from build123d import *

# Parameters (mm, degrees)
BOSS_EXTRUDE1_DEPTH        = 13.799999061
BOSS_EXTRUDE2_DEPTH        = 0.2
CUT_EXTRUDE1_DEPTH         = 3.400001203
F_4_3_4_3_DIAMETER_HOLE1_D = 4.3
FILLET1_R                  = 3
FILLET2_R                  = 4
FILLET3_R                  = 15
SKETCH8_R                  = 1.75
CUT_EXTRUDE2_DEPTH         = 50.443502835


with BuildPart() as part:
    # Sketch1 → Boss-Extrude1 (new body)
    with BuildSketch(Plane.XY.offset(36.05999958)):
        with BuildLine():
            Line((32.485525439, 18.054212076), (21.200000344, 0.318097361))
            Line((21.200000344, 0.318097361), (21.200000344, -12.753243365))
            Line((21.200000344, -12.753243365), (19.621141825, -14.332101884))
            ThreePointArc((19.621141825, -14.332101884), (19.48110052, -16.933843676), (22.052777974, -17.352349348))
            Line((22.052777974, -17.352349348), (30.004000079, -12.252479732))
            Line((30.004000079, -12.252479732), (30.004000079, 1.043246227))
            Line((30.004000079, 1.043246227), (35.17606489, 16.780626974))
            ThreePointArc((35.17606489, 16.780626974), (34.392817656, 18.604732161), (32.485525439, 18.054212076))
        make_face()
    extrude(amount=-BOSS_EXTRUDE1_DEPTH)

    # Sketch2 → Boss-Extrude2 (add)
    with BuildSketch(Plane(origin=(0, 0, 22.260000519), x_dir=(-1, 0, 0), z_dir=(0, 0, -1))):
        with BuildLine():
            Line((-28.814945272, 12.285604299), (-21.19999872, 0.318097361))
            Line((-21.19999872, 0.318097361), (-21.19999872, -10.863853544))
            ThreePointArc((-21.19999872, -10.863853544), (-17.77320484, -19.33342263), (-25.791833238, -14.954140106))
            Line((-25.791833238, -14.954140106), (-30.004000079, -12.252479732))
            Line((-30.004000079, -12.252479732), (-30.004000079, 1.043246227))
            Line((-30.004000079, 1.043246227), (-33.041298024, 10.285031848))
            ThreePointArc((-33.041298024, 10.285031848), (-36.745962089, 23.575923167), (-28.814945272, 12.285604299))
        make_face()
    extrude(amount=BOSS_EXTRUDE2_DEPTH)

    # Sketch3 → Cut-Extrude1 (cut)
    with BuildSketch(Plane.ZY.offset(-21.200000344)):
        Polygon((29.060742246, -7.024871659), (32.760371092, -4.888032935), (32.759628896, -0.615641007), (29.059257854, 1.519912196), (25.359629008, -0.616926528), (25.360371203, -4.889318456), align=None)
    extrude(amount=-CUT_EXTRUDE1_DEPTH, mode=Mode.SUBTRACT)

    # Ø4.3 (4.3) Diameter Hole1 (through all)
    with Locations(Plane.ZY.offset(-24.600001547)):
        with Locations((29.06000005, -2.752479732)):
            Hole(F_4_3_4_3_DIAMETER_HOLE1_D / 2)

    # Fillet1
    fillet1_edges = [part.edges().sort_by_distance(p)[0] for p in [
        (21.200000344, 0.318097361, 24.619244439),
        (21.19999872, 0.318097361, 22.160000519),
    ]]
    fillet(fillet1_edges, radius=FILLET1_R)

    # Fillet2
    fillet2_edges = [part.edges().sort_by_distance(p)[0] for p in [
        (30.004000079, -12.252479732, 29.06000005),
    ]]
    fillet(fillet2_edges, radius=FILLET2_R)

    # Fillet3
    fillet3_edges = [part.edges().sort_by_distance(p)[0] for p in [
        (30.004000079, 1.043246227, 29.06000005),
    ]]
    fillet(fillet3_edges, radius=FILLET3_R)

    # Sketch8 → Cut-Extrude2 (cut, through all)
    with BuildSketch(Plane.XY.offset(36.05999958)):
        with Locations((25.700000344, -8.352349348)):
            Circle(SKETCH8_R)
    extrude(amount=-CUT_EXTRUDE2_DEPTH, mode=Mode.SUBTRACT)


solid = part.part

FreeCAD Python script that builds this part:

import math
import FreeCAD as App
import Part
import Sketcher
from FreeCAD import Vector
Q = App.Units.Quantity


def edges_at(feature, points):
    """Names of the edges that pass closest to the given points."""
    edges = feature.Shape.Edges
    near = lambda p: min(range(len(edges)), key=lambda i: edges[i].distToShape(Part.Vertex(*p))[0])
    return sorted({f"Edge{near(p) + 1}" for p in points})


def add_polygon(sketch, points):
    """Adds a closed chain of lines whose ends are joined by coincident constraints."""
    first, n = sketch.GeometryCount, len(points)
    for a, b in zip(points, points[1:] + points[:1]):
        sketch.addGeometry(Part.LineSegment(App.Vector(*a, 0), App.Vector(*b, 0)), False)
    for i in range(n):
        sketch.addConstraint(Sketcher.Constraint("Coincident", first + i, 2, first + (i + 1) % n, 1))

doc = App.newDocument("Part")
body = doc.addObject("PartDesign::Body", "Body")

# Sketch on XY plane
sketch1 = doc.addObject("Sketcher::SketchObject", "Sketch")
body.addObject(sketch1)
sketch1.AttachmentSupport = (doc.XY_Plane, [""])
sketch1.MapMode = "FlatFace"
sketch1.AttachmentOffset = App.Placement(Vector(0, 0, 36.06), App.Rotation())
sketch1.addGeometry([
    Part.LineSegment(Vector(32.485525, 18.054212, 0), Vector(21.2, 0.318097, 0)),  # 0
    Part.LineSegment(Vector(21.2, 0.318097, 0), Vector(21.2, -12.753243, 0)),  # 1
    Part.LineSegment(Vector(21.2, -12.753243, 0), Vector(19.621142, -14.332102, 0)),  # 2
    Part.ArcOfCircle(Part.Circle(Vector(21, -15.71096, 0), Vector(0, 0, 1), 1.95), math.radians(135), math.radians(302.675887)),  # 3
    Part.LineSegment(Vector(22.052778, -17.352349, 0), Vector(30.004, -12.25248, 0)),  # 4
    Part.LineSegment(Vector(30.004, -12.25248, 0), Vector(30.004, 1.043246, 0)),  # 5
    Part.LineSegment(Vector(30.004, 1.043246, 0), Vector(35.176065, 16.780627, 0)),  # 6
    Part.ArcOfCircle(Part.Circle(Vector(33.751051, 17.248955, 0), Vector(0, 0, 1), 1.499998), math.radians(-18.193025), math.radians(147.531322)),  # 7
], False)
sketch1.addConstraint([
    Sketcher.Constraint("Coincident", 0, 2, 1, 1),
    Sketcher.Constraint("Coincident", 1, 2, 2, 1),
    Sketcher.Constraint("Tangent", 2, 2, 3, 1),
    Sketcher.Constraint("Tangent", 3, 2, 4, 1),
    Sketcher.Constraint("Coincident", 4, 2, 5, 1),
    Sketcher.Constraint("Coincident", 5, 2, 6, 1),
    Sketcher.Constraint("Tangent", 6, 2, 7, 1),
    Sketcher.Constraint("Tangent", 7, 2, 0, 1),
    Sketcher.Constraint("Vertical", 1),
    Sketcher.Constraint("Vertical", 5),
    Sketcher.Constraint("Radius", 7, Q("1.499998 mm")),
    Sketcher.Constraint("Angle", 2, Q("-135 deg")),
    Sketcher.Constraint("Radius", 3, Q("1.95 mm")),
    Sketcher.Constraint("DistanceX", -1, 1, 3, 3, Q("21 mm")),
    Sketcher.Constraint("DistanceX", -1, 1, 0, 2, Q("21.2 mm")),
    Sketcher.Constraint("DistanceX", -1, 1, 4, 2, Q("30.004 mm")),
    Sketcher.Constraint("Distance", 0, Q("21.022199 mm")),
    Sketcher.Constraint("DistanceY", 1, 2, 1, 1, Q("13.071341 mm")),
    Sketcher.Constraint("DistanceY", 2, 2, -1, 1, Q("14.332102 mm")),
    Sketcher.Constraint("DistanceY", 1, 2, 7, 3, Q("30.002199 mm")),
    Sketcher.Constraint("Distance", 6, Q("16.565488 mm")),
    Sketcher.Constraint("DistanceY", 5, 1, 5, 2, Q("13.295726 mm")),
])
pad1 = doc.addObject("PartDesign::Pad", "Pad")
body.addObject(pad1)
pad1.Profile = sketch1
pad1.Length = 13.799999
pad1.Reversed = True

# Sketch on XY plane
sketch2 = doc.addObject("Sketcher::SketchObject", "Sketch001")
body.addObject(sketch2)
sketch2.AttachmentSupport = (doc.XY_Plane, [""])
sketch2.MapMode = "FlatFace"
sketch2.AttachmentOffset = App.Placement(Vector(0, 0, 22.260001), App.Rotation())
sketch2.addGeometry([
    Part.LineSegment(Vector(21.199999, 0.318097, 0), Vector(28.814945, 12.285604, 0)),  # 0
    Part.ArcOfCircle(Part.Circle(Vector(33.75105, 17.248957, 0), Vector(0, 0, 1), 7), math.radians(-95.8194), math.radians(225.157703)),  # 1
    Part.LineSegment(Vector(33.041298, 10.285032, 0), Vector(30.004, 1.043246, 0)),  # 2
    Part.LineSegment(Vector(30.004, 1.043246, 0), Vector(30.004, -12.25248, 0)),  # 3
    Part.LineSegment(Vector(30.004, -12.25248, 0), Vector(25.791833, -14.95414, 0)),  # 4
    Part.ArcOfCircle(Part.Circle(Vector(21, -15.71096, 0), Vector(0, 0, 1), 4.851231), math.radians(87.637233), math.radians(368.975132)),  # 5
    Part.LineSegment(Vector(21.199999, -10.863854, 0), Vector(21.199999, 0.318097, 0)),  # 6
], False)
sketch2.addConstraint([
    Sketcher.Constraint("Coincident", 0, 2, 1, 2),
    Sketcher.Constraint("Coincident", 1, 1, 2, 1),
    Sketcher.Constraint("Coincident", 2, 2, 3, 1),
    Sketcher.Constraint("Coincident", 3, 2, 4, 1),
    Sketcher.Constraint("Coincident", 4, 2, 5, 2),
    Sketcher.Constraint("Coincident", 5, 1, 6, 1),
    Sketcher.Constraint("Coincident", 6, 2, 0, 1),
    Sketcher.Constraint("Vertical", 3),
    Sketcher.Constraint("Vertical", 6),
    Sketcher.Constraint("Radius", 1, Q("7 mm")),
    Sketcher.Constraint("DistanceX", -1, 1, 5, 3, Q("21 mm")),
    Sketcher.Constraint("DistanceX", -1, 1, 5, 1, Q("21.199999 mm")),
    Sketcher.Constraint("Radius", 5, Q("4.851231 mm")),
    Sketcher.Constraint("DistanceX", -1, 1, 2, 2, Q("30.004 mm")),
    Sketcher.Constraint("DistanceY", 6, 1, 6, 2, Q("11.181951 mm")),
    Sketcher.Constraint("DistanceX", -1, 1, 1, 1, Q("33.041298 mm")),
    Sketcher.Constraint("DistanceY", 5, 1, 2, 2, Q("11.9071 mm")),
    Sketcher.Constraint("Distance", 4, Q("5.00413 mm")),
    Sketcher.Constraint("DistanceY", 3, 2, 3, 1, Q("13.295726 mm")),
    Sketcher.Constraint("DistanceX", -1, 1, 1, 3, Q("33.75105 mm")),
    Sketcher.Constraint("DistanceY", 5, 3, -1, 1, Q("15.71096 mm")),
    Sketcher.Constraint("DistanceY", -1, 1, 1, 1, Q("10.285032 mm")),
    Sketcher.Constraint("DistanceY", 2, 2, 0, 2, Q("11.242358 mm")),
])
pad2 = doc.addObject("PartDesign::Pad", "Pad001")
body.addObject(pad2)
pad2.Profile = sketch2
pad2.Length = 0.2
pad2.Reversed = True

# Sketch on YZ plane
sketch3 = doc.addObject("Sketcher::SketchObject", "Sketch002")
body.addObject(sketch3)
sketch3.AttachmentSupport = (doc.YZ_Plane, [""])
sketch3.MapMode = "FlatFace"
sketch3.AttachmentOffset = App.Placement(Vector(0, 0, 21.2), App.Rotation())
add_polygon(sketch3, [(-7.024872, 29.060742), (-4.888033, 32.760371), (-0.615641, 32.759629), (1.519912, 29.059258), (-0.616927, 25.359629), (-4.889318, 25.360371)])  # lines 0-5
sketch3.addConstraint([
    Sketcher.Constraint("Parallel", 0, 3),
    Sketcher.Constraint("Parallel", 1, 4),
    Sketcher.Constraint("Parallel", 2, 5),
    Sketcher.Constraint("Equal", 0, 1),
    Sketcher.Constraint("Equal", 1, 2),
    Sketcher.Constraint("Equal", 2, 3),
    Sketcher.Constraint("DistanceY", 3, 2, 1, 2, Q("7.4 mm")),
    Sketcher.Constraint("Distance", 0, Q("4.272392 mm")),
    Sketcher.Constraint("DistanceY", -1, 1, 0, 2, Q("32.760371 mm")),
    Sketcher.Constraint("DistanceX", 1, 2, -1, 1, Q("0.615641 mm")),
    Sketcher.Constraint("DistanceY", -1, 1, 1, 2, Q("32.759629 mm")),
    Sketcher.Constraint("DistanceX", 4, 2, -1, 1, Q("4.889318 mm")),
])
pocket1 = doc.addObject("PartDesign::Pocket", "Pocket")
body.addObject(pocket1)
pocket1.Profile = sketch3
pocket1.Length = 3.400001
pocket1.Reversed = True

# Sketch on YZ plane
sketch4 = doc.addObject("Sketcher::SketchObject", "Sketch003")
body.addObject(sketch4)
sketch4.AttachmentSupport = (doc.YZ_Plane, [""])
sketch4.MapMode = "FlatFace"
sketch4.AttachmentOffset = App.Placement(Vector(0, 0, 24.600002), App.Rotation())
sketch4.addGeometry(Part.Circle(Vector(-2.75248, 29.06, 0), Vector(0, 0, 1), 2.15), False)
sketch4.addConstraint([
    Sketcher.Constraint("Diameter", 0, Q("4.3 mm")),
    Sketcher.Constraint("DistanceY", -1, 1, 0, 3, Q("29.06 mm")),
    Sketcher.Constraint("DistanceX", 0, 3, -1, 1, Q("2.75248 mm")),
])
doc.recompute()
hole = doc.addObject("PartDesign::Hole", "Hole")
body.addObject(hole)
hole.Profile = sketch4
hole.ThreadType = "None"
hole.Diameter = 4.3
hole.DepthType = "ThroughAll"
hole.Reversed = True
doc.recompute()

fillet = doc.addObject("PartDesign::Fillet", "Fillet")
body.addObject(fillet)
fillet.Base = (hole, edges_at(hole, [(21.2, 0.318, 24.619), (21.2, 0.318, 22.16)]))
fillet.Radius = 3
doc.recompute()

fillet2 = doc.addObject("PartDesign::Fillet", "Fillet001")
body.addObject(fillet2)
fillet2.Base = (fillet, edges_at(fillet, [(30.004, -12.252, 29.16)]))
fillet2.Radius = 4
doc.recompute()

fillet3 = doc.addObject("PartDesign::Fillet", "Fillet002")
body.addObject(fillet3)
fillet3.Base = (fillet2, edges_at(fillet2, [(30.004, 1.043, 29.16)]))
fillet3.Radius = 15

# Sketch on XY plane
sketch5 = doc.addObject("Sketcher::SketchObject", "Sketch004")
body.addObject(sketch5)
sketch5.AttachmentSupport = (doc.XY_Plane, [""])
sketch5.MapMode = "FlatFace"
sketch5.AttachmentOffset = App.Placement(Vector(0, 0, 36.06), App.Rotation())
sketch5.addGeometry(Part.Circle(Vector(25.7, -8.352349, 0), Vector(0, 0, 1), 1.75), False)
sketch5.addConstraint([
    Sketcher.Constraint("Diameter", 0, Q("3.5 mm")),
    Sketcher.Constraint("DistanceX", -1, 1, 0, 3, Q("25.7 mm")),
    Sketcher.Constraint("DistanceY", 0, 3, -1, 1, Q("8.352349 mm")),
])
pocket2 = doc.addObject("PartDesign::Pocket", "Pocket001")
body.addObject(pocket2)
pocket2.Profile = sketch5
pocket2.Type = "ThroughAll"

doc.recompute()
